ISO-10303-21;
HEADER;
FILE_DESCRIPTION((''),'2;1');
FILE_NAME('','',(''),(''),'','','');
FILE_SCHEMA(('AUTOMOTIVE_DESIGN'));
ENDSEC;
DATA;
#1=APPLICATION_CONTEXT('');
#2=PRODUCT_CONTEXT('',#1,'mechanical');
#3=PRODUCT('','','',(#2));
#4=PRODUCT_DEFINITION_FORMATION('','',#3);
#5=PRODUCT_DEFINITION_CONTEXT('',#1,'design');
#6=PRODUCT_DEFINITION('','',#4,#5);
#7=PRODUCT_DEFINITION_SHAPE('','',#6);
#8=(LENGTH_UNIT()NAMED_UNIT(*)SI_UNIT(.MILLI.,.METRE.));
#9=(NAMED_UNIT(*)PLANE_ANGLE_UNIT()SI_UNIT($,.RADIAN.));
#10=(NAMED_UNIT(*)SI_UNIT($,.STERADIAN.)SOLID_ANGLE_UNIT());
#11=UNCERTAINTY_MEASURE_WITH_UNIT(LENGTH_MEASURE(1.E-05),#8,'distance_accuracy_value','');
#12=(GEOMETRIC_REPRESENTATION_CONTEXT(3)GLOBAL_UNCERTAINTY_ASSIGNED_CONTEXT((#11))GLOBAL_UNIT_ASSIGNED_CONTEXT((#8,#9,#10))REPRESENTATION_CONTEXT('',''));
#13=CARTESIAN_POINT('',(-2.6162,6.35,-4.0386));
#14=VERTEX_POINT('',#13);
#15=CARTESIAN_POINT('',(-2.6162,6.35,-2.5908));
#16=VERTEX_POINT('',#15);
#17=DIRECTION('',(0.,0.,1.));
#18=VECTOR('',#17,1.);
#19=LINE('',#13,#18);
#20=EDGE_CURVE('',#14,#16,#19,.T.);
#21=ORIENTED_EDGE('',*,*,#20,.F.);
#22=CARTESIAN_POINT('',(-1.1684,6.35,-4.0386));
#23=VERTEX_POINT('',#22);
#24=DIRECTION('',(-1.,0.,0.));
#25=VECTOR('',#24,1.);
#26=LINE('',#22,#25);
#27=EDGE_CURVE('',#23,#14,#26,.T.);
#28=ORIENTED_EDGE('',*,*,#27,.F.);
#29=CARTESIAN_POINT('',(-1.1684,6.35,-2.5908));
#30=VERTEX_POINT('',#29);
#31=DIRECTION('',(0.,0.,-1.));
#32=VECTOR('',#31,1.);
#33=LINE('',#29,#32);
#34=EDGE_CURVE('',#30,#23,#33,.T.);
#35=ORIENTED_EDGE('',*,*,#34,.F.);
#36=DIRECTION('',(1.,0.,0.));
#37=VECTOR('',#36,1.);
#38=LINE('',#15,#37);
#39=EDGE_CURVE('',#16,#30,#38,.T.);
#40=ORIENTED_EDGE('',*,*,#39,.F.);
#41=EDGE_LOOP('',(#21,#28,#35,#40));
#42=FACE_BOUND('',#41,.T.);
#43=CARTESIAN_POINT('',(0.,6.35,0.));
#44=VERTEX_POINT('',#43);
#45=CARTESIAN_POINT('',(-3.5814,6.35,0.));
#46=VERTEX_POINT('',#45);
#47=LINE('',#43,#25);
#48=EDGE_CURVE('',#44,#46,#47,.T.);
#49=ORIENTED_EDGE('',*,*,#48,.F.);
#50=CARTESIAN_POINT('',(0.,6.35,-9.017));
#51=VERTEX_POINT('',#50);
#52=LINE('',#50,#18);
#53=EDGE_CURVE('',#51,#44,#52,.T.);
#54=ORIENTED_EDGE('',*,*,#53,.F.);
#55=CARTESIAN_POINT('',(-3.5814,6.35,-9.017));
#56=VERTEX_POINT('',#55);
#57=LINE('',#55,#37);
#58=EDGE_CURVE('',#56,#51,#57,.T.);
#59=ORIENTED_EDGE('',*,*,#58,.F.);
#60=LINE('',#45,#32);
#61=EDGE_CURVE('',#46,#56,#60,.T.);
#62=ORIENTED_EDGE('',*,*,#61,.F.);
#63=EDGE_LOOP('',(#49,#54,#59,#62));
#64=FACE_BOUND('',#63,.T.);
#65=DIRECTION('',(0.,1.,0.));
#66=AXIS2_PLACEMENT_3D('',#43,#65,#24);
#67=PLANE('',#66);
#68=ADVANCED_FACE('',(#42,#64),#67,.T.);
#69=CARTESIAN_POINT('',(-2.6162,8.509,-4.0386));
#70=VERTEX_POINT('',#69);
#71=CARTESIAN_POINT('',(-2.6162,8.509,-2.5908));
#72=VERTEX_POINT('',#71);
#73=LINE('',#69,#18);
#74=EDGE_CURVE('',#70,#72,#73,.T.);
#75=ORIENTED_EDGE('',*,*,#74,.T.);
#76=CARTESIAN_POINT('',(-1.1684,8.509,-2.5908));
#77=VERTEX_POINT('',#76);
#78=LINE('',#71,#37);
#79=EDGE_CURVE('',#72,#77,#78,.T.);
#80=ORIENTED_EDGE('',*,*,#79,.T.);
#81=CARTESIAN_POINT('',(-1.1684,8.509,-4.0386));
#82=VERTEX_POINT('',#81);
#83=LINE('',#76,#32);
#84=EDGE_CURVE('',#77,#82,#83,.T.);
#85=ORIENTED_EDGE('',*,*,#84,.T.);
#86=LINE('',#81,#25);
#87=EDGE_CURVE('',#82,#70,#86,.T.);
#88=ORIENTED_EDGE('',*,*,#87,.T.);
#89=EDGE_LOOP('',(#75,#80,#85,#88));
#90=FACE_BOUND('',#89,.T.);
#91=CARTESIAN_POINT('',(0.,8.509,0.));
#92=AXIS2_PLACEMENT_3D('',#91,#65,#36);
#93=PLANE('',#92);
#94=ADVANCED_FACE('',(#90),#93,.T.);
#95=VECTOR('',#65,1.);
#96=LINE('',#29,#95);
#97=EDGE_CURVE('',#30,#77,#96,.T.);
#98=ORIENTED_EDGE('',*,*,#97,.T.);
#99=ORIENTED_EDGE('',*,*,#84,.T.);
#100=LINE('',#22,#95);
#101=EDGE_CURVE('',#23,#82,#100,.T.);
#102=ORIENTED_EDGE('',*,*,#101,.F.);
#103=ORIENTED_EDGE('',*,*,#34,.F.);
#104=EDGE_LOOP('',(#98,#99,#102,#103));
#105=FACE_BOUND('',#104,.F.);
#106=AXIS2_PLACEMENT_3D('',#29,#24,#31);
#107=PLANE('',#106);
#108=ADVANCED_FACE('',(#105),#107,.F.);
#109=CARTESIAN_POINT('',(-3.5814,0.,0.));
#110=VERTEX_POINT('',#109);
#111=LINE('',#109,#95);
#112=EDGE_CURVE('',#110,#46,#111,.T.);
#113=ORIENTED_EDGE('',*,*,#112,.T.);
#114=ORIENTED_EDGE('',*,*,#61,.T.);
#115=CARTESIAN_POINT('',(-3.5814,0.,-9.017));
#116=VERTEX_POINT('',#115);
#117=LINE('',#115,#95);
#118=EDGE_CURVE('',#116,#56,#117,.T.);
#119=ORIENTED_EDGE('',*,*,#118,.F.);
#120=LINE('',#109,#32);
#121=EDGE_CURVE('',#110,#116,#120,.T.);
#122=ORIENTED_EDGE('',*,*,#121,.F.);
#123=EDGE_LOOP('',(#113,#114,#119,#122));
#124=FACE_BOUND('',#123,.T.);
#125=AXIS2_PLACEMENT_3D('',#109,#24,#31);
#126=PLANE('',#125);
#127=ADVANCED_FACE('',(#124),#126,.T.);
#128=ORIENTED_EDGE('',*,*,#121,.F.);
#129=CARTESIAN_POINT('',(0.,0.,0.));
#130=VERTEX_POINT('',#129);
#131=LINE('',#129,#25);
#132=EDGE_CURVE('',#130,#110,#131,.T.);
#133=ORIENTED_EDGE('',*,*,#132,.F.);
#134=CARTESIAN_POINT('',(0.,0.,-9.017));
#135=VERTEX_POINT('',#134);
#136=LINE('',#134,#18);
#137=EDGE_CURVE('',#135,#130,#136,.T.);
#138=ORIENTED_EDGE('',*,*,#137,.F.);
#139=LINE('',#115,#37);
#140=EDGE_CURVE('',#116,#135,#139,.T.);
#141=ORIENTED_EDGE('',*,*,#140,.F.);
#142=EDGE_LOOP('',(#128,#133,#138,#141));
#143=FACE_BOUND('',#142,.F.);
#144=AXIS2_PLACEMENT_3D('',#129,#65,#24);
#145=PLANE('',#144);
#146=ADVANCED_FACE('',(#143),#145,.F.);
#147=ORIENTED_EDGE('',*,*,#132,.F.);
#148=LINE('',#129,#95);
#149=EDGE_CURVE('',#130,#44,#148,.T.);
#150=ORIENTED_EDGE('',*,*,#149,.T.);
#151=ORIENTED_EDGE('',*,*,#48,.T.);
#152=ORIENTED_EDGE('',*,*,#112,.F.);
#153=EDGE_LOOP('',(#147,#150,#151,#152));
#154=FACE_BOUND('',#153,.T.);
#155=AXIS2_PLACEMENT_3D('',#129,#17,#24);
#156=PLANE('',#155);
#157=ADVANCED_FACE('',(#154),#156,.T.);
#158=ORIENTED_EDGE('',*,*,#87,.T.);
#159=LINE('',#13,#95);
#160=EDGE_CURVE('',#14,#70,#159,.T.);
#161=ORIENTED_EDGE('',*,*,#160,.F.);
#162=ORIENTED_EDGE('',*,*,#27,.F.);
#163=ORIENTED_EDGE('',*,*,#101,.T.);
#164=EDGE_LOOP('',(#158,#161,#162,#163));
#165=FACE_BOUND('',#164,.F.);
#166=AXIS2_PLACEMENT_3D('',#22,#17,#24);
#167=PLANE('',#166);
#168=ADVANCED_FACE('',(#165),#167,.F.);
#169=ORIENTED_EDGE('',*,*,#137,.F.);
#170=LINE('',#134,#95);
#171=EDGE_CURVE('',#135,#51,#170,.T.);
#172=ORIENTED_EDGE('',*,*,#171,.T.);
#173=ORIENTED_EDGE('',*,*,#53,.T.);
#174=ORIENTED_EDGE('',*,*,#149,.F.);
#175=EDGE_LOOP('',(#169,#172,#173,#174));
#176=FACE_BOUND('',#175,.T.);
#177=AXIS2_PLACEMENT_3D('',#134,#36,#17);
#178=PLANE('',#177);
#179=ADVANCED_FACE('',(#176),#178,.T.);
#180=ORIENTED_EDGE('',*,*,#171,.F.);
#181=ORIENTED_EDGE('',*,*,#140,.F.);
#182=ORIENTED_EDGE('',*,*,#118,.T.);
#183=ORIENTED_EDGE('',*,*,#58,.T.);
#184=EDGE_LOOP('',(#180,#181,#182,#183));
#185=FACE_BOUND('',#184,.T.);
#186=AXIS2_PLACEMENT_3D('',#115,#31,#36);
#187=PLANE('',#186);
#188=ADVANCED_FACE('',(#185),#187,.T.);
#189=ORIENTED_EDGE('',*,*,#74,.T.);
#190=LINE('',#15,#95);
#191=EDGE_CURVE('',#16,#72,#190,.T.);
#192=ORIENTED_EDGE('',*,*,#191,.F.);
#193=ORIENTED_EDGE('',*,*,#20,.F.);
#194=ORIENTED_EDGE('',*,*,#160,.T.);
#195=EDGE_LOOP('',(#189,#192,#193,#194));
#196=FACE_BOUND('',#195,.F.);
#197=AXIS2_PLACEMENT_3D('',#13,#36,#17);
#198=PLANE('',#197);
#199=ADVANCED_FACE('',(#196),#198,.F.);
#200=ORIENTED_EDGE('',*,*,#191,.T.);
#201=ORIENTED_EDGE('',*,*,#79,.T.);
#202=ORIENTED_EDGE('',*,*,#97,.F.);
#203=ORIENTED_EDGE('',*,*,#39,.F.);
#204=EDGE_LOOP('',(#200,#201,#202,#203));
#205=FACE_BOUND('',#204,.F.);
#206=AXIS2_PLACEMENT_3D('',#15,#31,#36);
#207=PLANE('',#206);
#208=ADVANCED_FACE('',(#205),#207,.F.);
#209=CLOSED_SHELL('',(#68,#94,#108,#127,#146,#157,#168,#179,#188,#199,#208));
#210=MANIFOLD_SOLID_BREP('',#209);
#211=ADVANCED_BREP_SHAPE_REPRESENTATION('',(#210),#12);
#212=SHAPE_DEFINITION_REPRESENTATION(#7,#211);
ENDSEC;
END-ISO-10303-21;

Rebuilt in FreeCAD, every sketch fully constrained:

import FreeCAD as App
import Part
import Sketcher
from FreeCAD import Vector
Q = App.Units.Quantity

doc = App.newDocument("Part")
body = doc.addObject("PartDesign::Body", "Body")

sketch1 = body.newObject("Sketcher::SketchObject", "Sketch")
sketch1.AttachmentSupport = (doc.getObject("XZ_Plane"), [""])
sketch1.MapMode = "FlatFace"
sketch1.addGeometry([
    Part.LineSegment(Vector(-3.5814, 0, 0), Vector(0, 0, 0)),
    Part.LineSegment(Vector(0, 0, 0), Vector(0, -9.017, 0)),
    Part.LineSegment(Vector(0, -9.017, 0), Vector(-3.5814, -9.017, 0)),
    Part.LineSegment(Vector(-3.5814, -9.017, 0), Vector(-3.5814, 0, 0)),
], False)
sketch1.addConstraint([
    Sketcher.Constraint("Coincident", 0, 2, 1, 1),
    Sketcher.Constraint("Coincident", 1, 2, 2, 1),
    Sketcher.Constraint("Coincident", 2, 2, 3, 1),
    Sketcher.Constraint("Coincident", 3, 2, 0, 1),
    Sketcher.Constraint("Horizontal", 0),
    Sketcher.Constraint("Vertical", 1),
    Sketcher.Constraint("Horizontal", 2),
    Sketcher.Constraint("Vertical", 3),
    Sketcher.Constraint("Coincident", 0, 2, -1, 1),
    Sketcher.Constraint("DistanceX", 0, 1, 0, 2, Q("0.141 in")),
    Sketcher.Constraint("DistanceY", 1, 2, 1, 1, Q("0.355 in")),
])
pad1 = body.newObject("PartDesign::Pad", "Pad")
pad1.Profile = sketch1
pad1.Length = Q("0.25 in")
pad1.Reversed = True

sketch2 = body.newObject("Sketcher::SketchObject", "Sketch001")
sketch2.AttachmentSupport = (doc.getObject("XZ_Plane"), [""])
sketch2.MapMode = "FlatFace"
sketch2.AttachmentOffset = App.Placement(Vector(0, 0, -0.25 * 25.4), App.Rotation())
sketch2.addGeometry([
    Part.LineSegment(Vector(-2.6162, -4.0386, 0), Vector(-2.6162, -2.5908, 0)),
    Part.LineSegment(Vector(-2.6162, -2.5908, 0), Vector(-1.1684, -2.5908, 0)),
    Part.LineSegment(Vector(-1.1684, -2.5908, 0), Vector(-1.1684, -4.0386, 0)),
    Part.LineSegment(Vector(-1.1684, -4.0386, 0), Vector(-2.6162, -4.0386, 0)),
], False)
sketch2.addConstraint([
    Sketcher.Constraint("Coincident", 0, 2, 1, 1),
    Sketcher.Constraint("Coincident", 1, 2, 2, 1),
    Sketcher.Constraint("Coincident", 2, 2, 3, 1),
    Sketcher.Constraint("Coincident", 3, 2, 0, 1),
    Sketcher.Constraint("Vertical", 0),
    Sketcher.Constraint("Horizontal", 1),
    Sketcher.Constraint("Vertical", 2),
    Sketcher.Constraint("Horizontal", 3),
    Sketcher.Constraint("Equal", 3, 0),
    Sketcher.Constraint("DistanceX", 1, 1, 1, 2, Q("0.057 in")),
    Sketcher.Constraint("DistanceY", 0, 2, -1, 1, Q("0.102 in")),
    Sketcher.Constraint("DistanceX", 1, 2, -1, 1, Q("0.046 in")),
])
pad2 = body.newObject("PartDesign::Pad", "Pad001")
pad2.Profile = sketch2
pad2.Length = Q("0.085 in")
pad2.Reversed = True

doc.recompute()
